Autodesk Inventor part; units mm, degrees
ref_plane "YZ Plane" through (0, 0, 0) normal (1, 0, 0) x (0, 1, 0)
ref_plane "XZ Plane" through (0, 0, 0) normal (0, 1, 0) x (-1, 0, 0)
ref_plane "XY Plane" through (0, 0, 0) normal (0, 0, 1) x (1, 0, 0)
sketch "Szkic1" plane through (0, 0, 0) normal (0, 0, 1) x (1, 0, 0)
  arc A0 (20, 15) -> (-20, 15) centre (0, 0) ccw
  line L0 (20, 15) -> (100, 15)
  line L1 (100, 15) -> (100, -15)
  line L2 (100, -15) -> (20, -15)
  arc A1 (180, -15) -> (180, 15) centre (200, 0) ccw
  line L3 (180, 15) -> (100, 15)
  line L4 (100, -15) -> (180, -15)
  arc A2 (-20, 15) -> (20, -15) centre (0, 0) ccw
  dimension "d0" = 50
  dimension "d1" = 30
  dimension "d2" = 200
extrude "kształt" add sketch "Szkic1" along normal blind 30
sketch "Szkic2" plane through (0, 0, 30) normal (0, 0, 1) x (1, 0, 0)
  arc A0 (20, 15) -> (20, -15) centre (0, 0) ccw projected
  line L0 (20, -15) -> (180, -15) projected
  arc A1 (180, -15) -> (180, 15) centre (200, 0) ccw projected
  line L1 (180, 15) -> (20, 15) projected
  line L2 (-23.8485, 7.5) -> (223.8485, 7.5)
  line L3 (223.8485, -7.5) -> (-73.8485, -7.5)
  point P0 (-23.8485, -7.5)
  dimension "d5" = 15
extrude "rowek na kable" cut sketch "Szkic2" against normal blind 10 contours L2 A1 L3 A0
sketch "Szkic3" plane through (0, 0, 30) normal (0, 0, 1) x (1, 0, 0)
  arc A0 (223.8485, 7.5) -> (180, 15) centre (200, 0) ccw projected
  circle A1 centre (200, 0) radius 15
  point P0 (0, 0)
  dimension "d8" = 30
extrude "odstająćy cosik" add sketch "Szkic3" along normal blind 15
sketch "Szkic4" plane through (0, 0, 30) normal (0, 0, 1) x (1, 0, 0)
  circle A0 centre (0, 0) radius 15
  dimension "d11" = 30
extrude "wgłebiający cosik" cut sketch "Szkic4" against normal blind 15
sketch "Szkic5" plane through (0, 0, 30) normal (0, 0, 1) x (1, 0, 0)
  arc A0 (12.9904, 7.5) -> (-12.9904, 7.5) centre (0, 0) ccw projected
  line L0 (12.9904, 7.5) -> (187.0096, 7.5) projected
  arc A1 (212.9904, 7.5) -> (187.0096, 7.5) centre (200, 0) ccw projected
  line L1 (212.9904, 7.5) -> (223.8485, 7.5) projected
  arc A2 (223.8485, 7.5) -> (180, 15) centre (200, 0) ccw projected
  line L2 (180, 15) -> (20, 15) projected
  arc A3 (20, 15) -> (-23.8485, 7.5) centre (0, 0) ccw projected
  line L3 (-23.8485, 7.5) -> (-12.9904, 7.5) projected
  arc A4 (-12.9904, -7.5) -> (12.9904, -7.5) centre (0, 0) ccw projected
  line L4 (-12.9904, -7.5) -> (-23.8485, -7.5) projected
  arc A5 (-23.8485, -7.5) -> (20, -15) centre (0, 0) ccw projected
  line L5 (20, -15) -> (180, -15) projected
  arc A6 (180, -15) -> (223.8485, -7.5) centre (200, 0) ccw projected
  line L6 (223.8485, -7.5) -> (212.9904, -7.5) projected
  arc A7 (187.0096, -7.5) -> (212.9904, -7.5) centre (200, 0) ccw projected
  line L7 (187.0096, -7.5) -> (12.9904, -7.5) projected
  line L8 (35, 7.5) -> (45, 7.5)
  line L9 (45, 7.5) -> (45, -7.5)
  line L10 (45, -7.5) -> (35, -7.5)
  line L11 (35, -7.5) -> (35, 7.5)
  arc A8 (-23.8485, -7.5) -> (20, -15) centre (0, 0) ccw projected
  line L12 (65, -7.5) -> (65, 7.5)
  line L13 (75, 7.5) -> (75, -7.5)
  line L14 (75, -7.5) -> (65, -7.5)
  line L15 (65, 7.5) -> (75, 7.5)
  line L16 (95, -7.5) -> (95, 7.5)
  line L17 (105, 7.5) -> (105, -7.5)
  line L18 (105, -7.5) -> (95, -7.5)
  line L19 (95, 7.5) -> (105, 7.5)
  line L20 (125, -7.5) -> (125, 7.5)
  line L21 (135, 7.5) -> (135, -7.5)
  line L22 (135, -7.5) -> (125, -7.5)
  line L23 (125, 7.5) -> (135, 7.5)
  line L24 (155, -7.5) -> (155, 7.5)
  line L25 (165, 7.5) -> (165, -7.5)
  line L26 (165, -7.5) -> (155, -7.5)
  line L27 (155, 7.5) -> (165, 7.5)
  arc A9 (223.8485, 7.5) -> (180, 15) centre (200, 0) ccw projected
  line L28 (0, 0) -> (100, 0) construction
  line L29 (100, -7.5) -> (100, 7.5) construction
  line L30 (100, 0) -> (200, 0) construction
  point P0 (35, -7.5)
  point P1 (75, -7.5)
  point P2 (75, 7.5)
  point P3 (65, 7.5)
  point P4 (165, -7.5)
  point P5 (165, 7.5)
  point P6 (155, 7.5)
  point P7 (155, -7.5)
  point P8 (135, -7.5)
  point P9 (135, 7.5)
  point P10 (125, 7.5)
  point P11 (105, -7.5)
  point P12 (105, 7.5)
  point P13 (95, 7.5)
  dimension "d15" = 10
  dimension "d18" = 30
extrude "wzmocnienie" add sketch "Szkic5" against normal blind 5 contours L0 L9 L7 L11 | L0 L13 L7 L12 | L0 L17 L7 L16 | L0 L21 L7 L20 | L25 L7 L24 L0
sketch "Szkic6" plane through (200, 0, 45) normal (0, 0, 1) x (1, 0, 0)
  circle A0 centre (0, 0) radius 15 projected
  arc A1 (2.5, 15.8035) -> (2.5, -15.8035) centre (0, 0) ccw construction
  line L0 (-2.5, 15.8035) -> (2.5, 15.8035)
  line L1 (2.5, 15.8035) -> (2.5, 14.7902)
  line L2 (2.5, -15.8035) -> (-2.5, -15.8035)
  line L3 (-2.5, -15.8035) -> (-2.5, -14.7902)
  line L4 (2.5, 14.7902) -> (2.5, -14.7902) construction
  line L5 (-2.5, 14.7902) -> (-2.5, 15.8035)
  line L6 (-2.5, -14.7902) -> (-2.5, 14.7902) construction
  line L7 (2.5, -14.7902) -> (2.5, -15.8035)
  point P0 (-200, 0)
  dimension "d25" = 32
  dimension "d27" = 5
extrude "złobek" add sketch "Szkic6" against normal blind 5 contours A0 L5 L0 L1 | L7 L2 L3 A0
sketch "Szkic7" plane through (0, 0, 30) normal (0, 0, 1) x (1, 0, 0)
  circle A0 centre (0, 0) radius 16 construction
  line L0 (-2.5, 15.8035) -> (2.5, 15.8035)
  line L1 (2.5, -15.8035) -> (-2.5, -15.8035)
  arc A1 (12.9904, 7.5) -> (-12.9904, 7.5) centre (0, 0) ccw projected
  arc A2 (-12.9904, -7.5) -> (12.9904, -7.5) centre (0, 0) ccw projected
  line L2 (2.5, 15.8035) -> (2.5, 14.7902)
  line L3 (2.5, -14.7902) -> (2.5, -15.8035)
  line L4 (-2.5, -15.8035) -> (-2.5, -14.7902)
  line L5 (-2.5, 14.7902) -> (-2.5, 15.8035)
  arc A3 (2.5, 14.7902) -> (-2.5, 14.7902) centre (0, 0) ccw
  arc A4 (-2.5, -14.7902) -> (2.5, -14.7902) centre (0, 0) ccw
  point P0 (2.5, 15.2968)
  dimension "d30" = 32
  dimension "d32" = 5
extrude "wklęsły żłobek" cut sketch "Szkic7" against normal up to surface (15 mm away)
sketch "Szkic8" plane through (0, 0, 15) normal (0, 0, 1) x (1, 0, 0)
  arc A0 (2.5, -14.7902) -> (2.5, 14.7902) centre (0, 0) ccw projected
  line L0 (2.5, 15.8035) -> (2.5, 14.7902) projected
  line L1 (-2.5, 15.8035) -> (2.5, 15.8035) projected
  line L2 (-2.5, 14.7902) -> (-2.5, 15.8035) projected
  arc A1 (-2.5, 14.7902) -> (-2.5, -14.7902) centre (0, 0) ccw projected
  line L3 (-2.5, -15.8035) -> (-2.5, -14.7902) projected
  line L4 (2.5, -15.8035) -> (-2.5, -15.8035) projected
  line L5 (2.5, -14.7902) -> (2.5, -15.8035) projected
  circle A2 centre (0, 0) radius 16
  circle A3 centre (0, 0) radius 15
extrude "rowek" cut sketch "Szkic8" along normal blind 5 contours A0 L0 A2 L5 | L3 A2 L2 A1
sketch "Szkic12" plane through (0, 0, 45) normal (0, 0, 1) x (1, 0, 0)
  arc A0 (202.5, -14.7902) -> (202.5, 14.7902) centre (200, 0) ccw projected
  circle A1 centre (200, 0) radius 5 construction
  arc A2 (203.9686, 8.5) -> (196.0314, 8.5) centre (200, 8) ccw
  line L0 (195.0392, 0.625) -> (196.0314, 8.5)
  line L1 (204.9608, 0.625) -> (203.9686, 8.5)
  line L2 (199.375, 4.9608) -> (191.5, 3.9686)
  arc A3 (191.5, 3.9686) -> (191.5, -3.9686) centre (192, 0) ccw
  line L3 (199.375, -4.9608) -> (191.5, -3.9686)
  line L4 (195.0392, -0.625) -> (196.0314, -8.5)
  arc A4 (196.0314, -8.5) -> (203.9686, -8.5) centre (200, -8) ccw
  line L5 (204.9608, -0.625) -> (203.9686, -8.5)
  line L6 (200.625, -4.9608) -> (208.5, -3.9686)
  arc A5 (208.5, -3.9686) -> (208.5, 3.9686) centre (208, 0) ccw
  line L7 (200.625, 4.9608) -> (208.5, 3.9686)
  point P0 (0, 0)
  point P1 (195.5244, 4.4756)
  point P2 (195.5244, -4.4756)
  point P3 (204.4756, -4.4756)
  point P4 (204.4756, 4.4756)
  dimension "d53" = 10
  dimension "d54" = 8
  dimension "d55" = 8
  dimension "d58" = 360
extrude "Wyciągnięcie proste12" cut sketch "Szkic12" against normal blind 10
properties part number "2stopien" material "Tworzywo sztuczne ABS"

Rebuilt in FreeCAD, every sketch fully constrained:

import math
import FreeCAD as App
import Part
import Sketcher
from FreeCAD import Vector
Q = App.Units.Quantity


def add_polygon(sketch, points):
    """Adds a closed chain of lines whose ends are joined by coincident constraints."""
    first, n = sketch.GeometryCount, len(points)
    for a, b in zip(points, points[1:] + points[:1]):
        sketch.addGeometry(Part.LineSegment(App.Vector(*a, 0), App.Vector(*b, 0)), False)
    for i in range(n):
        sketch.addConstraint(Sketcher.Constraint("Coincident", first + i, 2, first + (i + 1) % n, 1))

doc = App.newDocument("Part")
body = doc.addObject("PartDesign::Body", "Body")

# Sketch on XY plane
sketch1 = body.newObject("Sketcher::SketchObject", "Sketch")
sketch1.AttachmentSupport = (doc.getObject("XY_Plane"), [""])
sketch1.MapMode = "FlatFace"
sketch1.addGeometry([
    Part.ArcOfCircle(Part.Circle(Vector(0, 0, 0), Vector(0, 0, 1), 25), math.radians(37), math.radians(323)),
    Part.LineSegment(Vector(20, -15, 0), Vector(180, -15, 0)),
    Part.ArcOfCircle(Part.Circle(Vector(200, 0, 0), Vector(0, 0, 1), 25), math.radians(-143), math.radians(143)),
    Part.LineSegment(Vector(180, 15, 0), Vector(20, 15, 0)),
], False)
sketch1.addConstraint([
    Sketcher.Constraint("Coincident", 0, 2, 1, 1),
    Sketcher.Constraint("Coincident", 1, 2, 2, 1),
    Sketcher.Constraint("Coincident", 2, 2, 3, 1),
    Sketcher.Constraint("Coincident", 3, 2, 0, 1),
    Sketcher.Constraint("Horizontal", 1),
    Sketcher.Constraint("Horizontal", 3),
    Sketcher.Constraint("Coincident", 0, 3, -1, 1),
    Sketcher.Constraint("Equal", 0, 2),
    Sketcher.Constraint("Symmetric", 1, 2, 2, 2, -1),
    Sketcher.Constraint("Radius", 0, Q("25 mm")),
    Sketcher.Constraint("DistanceX", -1, 1, 2, 3, Q("200 mm")),
    Sketcher.Constraint("DistanceY", 1, 2, 2, 2, Q("30 mm")),
])
pad1 = body.newObject("PartDesign::Pad", "Pad")
pad1.Profile = sketch1
pad1.Length = 30

# Sketch on XY plane
sketch2 = body.newObject("Sketcher::SketchObject", "Sketch001")
sketch2.AttachmentSupport = (doc.getObject("XY_Plane"), [""])
sketch2.MapMode = "FlatFace"
sketch2.AttachmentOffset = App.Placement(Vector(0, 0, 30), App.Rotation())
sketch2.addGeometry([
    Part.LineSegment(Vector(224, 8, 0), Vector(-24, 8, 0)),
    Part.ArcOfCircle(Part.Circle(Vector(0, 0, 0), Vector(0, 0, 1), 25), math.radians(163), math.radians(197)),
    Part.LineSegment(Vector(-24, -8, 0), Vector(224, -8, 0)),
    Part.ArcOfCircle(Part.Circle(Vector(200, 0, 0), Vector(0, 0, 1), 25), math.radians(-17), math.radians(17)),
], False)
sketch2.addConstraint([
    Sketcher.Constraint("Coincident", 0, 2, 1, 1),
    Sketcher.Constraint("Coincident", 1, 2, 2, 1),
    Sketcher.Constraint("Coincident", 2, 2, 3, 1),
    Sketcher.Constraint("Coincident", 3, 2, 0, 1),
    Sketcher.Constraint("Horizontal", 0),
    Sketcher.Constraint("Horizontal", 2),
    Sketcher.Constraint("Coincident", 1, 3, -1, 1),
    Sketcher.Constraint("Equal", 1, 3),
    Sketcher.Constraint("Symmetric", 2, 2, 3, 2, -1),
    Sketcher.Constraint("Radius", 1, Q("25 mm")),
    Sketcher.Constraint("DistanceY", 1, 2, 0, 2, Q("15 mm")),
    Sketcher.Constraint("DistanceX", -1, 1, 3, 3, Q("200 mm")),
])
pocket1 = body.newObject("PartDesign::Pocket", "Pocket")
pocket1.Profile = sketch2
pocket1.Length = 10

# Sketch on XY plane
sketch3 = body.newObject("Sketcher::SketchObject", "Sketch002")
sketch3.AttachmentSupport = (doc.getObject("XY_Plane"), [""])
sketch3.MapMode = "FlatFace"
sketch3.AttachmentOffset = App.Placement(Vector(0, 0, 30), App.Rotation())
sketch3.addGeometry(Part.Circle(Vector(200, 0, 0), Vector(0, 0, 1), 15), False)
sketch3.addConstraint([
    Sketcher.Constraint("PointOnObject", 0, 3, -1),
    Sketcher.Constraint("Diameter", 0, Q("30 mm")),
    Sketcher.Constraint("DistanceX", -1, 1, 0, 3, Q("200 mm")),
])
pad2 = body.newObject("PartDesign::Pad", "Pad001")
pad2.Profile = sketch3
pad2.Length = 15

# Sketch on XY plane
sketch4 = body.newObject("Sketcher::SketchObject", "Sketch003")
sketch4.AttachmentSupport = (doc.getObject("XY_Plane"), [""])
sketch4.MapMode = "FlatFace"
sketch4.AttachmentOffset = App.Placement(Vector(0, 0, 30), App.Rotation())
sketch4.addGeometry(Part.Circle(Vector(0, 0, 0), Vector(0, 0, 1), 15), False)
sketch4.addConstraint([
    Sketcher.Constraint("Coincident", 0, 3, -1, 1),
    Sketcher.Constraint("Diameter", 0, Q("30 mm")),
])
pocket2 = body.newObject("PartDesign::Pocket", "Pocket001")
pocket2.Profile = sketch4
pocket2.Length = 15

# Sketch on XY plane
sketch5 = body.newObject("Sketcher::SketchObject", "Sketch004")
sketch5.AttachmentSupport = (doc.getObject("XY_Plane"), [""])
sketch5.MapMode = "FlatFace"
sketch5.AttachmentOffset = App.Placement(Vector(0, 0, 30), App.Rotation())
add_polygon(sketch5, [(45, 8), (35, 8), (35, -8), (45, -8)])  # lines 0-3
add_polygon(sketch5, [(75, 8), (65, 8), (65, -8), (75, -8)])  # lines 4-7
add_polygon(sketch5, [(105, 8), (95, 8), (95, -8), (105, -8)])  # lines 8-11
add_polygon(sketch5, [(135, 8), (125, 8), (125, -8), (135, -8)])  # lines 12-15
add_polygon(sketch5, [(165, -8), (165, 8), (155, 8), (155, -8)])  # lines 16-19
sketch5.addConstraint([
    Sketcher.Constraint("Horizontal", 0),
    Sketcher.Constraint("Vertical", 1),
    Sketcher.Constraint("Horizontal", 2),
    Sketcher.Constraint("Vertical", 3),
    Sketcher.Constraint("Horizontal", 4),
    Sketcher.Constraint("Vertical", 5),
    Sketcher.Constraint("Horizontal", 6),
    Sketcher.Constraint("Vertical", 7),
    Sketcher.Constraint("Horizontal", 8),
    Sketcher.Constraint("Vertical", 9),
    Sketcher.Constraint("Horizontal", 10),
    Sketcher.Constraint("Vertical", 11),
    Sketcher.Constraint("Horizontal", 12),
    Sketcher.Constraint("Vertical", 13),
    Sketcher.Constraint("Horizontal", 14),
    Sketcher.Constraint("Vertical", 15),
    Sketcher.Constraint("Vertical", 16),
    Sketcher.Constraint("Horizontal", 17),
    Sketcher.Constraint("Vertical", 18),
    Sketcher.Constraint("Horizontal", 19),
    Sketcher.Constraint("Horizontal", 3, 2, 4, 2),
    Sketcher.Constraint("Horizontal", 2, 2, 5, 2),
    Sketcher.Constraint("Horizontal", 7, 2, 8, 2),
    Sketcher.Constraint("Horizontal", 6, 2, 9, 2),
    Sketcher.Constraint("Horizontal", 11, 2, 12, 2),
    Sketcher.Constraint("Horizontal", 10, 2, 13, 2),
    Sketcher.Constraint("Horizontal", 15, 2, 16, 2),
    Sketcher.Constraint("Horizontal", 14, 2, 18, 2),
    Sketcher.Constraint("Equal", 2, 4),
    Sketcher.Constraint("Equal", 6, 8),
    Sketcher.Constraint("Equal", 10, 12),
    Sketcher.Constraint("Equal", 14, 17),
    Sketcher.Constraint("DistanceX", 0, 2, 0, 1, Q("10 mm")),
    Sketcher.Constraint("DistanceX", 0, 2, 4, 2, Q("30 mm")),
    Sketcher.Constraint("DistanceX", 4, 2, 8, 2, Q("30 mm")),
    Sketcher.Constraint("DistanceX", 8, 2, 12, 2, Q("30 mm")),
    Sketcher.Constraint("DistanceX", 15, 2, 16, 2, Q("30 mm")),
    Sketcher.Constraint("DistanceY", 1, 2, 1, 1, Q("15 mm")),
    Sketcher.Constraint("DistanceX", -1, 1, 0, 2, Q("35 mm")),
    Sketcher.Constraint("DistanceY", -1, 1, 0, 2, Q("7.5 mm")),
])
pad3 = body.newObject("PartDesign::Pad", "Pad002")
pad3.Profile = sketch5
pad3.Length = 5
pad3.Reversed = True

# Sketch on XY plane
sketch6 = body.newObject("Sketcher::SketchObject", "Sketch005")
sketch6.AttachmentSupport = (doc.getObject("XY_Plane"), [""])
sketch6.MapMode = "FlatFace"
sketch6.AttachmentOffset = App.Placement(Vector(0, 0, 45), App.Rotation())
sketch6.addGeometry([
    Part.ArcOfCircle(Part.Circle(Vector(200, 0, 0), Vector(0, 0, 1), 15), math.radians(80.41), math.radians(99.59)),  # 0
    Part.LineSegment(Vector(202.5, 14.8, 0), Vector(202.5, 15.8, 0)),  # 1
    Part.LineSegment(Vector(202.5, 15.8, 0), Vector(197.5, 15.8, 0)),  # 2
    Part.LineSegment(Vector(197.5, 15.8, 0), Vector(197.5, 14.8, 0)),  # 3
    Part.LineSegment(Vector(202.5, -15.8, 0), Vector(202.5, -14.8, 0)),  # 4
    Part.ArcOfCircle(Part.Circle(Vector(200, 0, 0), Vector(0, 0, 1), 15), math.radians(-99.59), math.radians(-80.41)),  # 5
    Part.LineSegment(Vector(197.5, -14.8, 0), Vector(197.5, -15.8, 0)),  # 6
    Part.LineSegment(Vector(197.5, -15.8, 0), Vector(202.5, -15.8, 0)),  # 7
], False)
sketch6.addConstraint([
    Sketcher.Constraint("Coincident", 0, 1, 1, 1),
    Sketcher.Constraint("Coincident", 1, 2, 2, 1),
    Sketcher.Constraint("Coincident", 2, 2, 3, 1),
    Sketcher.Constraint("Coincident", 3, 2, 0, 2),
    Sketcher.Constraint("Coincident", 4, 2, 5, 2),
    Sketcher.Constraint("Coincident", 5, 1, 6, 1),
    Sketcher.Constraint("Coincident", 6, 2, 7, 1),
    Sketcher.Constraint("Coincident", 7, 2, 4, 1),
    Sketcher.Constraint("Vertical", 1),
    Sketcher.Constraint("Horizontal", 2),
    Sketcher.Constraint("Vertical", 3),
    Sketcher.Constraint("Vertical", 4),
    Sketcher.Constraint("Vertical", 6),
    Sketcher.Constraint("Horizontal", 7),
    Sketcher.Constraint("Coincident", 5, 3, 0, 3),
    Sketcher.Constraint("Equal", 0, 5),
    Sketcher.Constraint("Symmetric", 0, 1, 4, 2, -1),
    Sketcher.Constraint("Symmetric", 2, 2, 6, 2, -1),
    Sketcher.Constraint("Horizontal", 0, 1, 3, 2),
    Sketcher.Constraint("DistanceX", 2, 2, 2, 1, Q("5 mm")),
    Sketcher.Constraint("Radius", 0, Q("15 mm")),
    Sketcher.Constraint("DistanceX", -1, 1, 0, 3, Q("200 mm")),
    Sketcher.Constraint("DistanceY", 1, 1, 1, 2, Q("1.0133 mm")),
])
pad4 = body.newObject("PartDesign::Pad", "Pad003")
pad4.Profile = sketch6
pad4.Length = 5
pad4.Reversed = True

# Sketch on XY plane
sketch7 = body.newObject("Sketcher::SketchObject", "Sketch006")
sketch7.AttachmentSupport = (doc.getObject("XY_Plane"), [""])
sketch7.MapMode = "FlatFace"
sketch7.AttachmentOffset = App.Placement(Vector(0, 0, 30), App.Rotation())
sketch7.addGeometry([
    Part.LineSegment(Vector(2.5, 15.8, 0), Vector(-2.5, 15.8, 0)),  # 0
    Part.LineSegment(Vector(-2.5, 15.8, 0), Vector(-2.5, 14.8, 0)),  # 1
    Part.ArcOfCircle(Part.Circle(Vector(0, 0, 0), Vector(0, 0, 1), 15), math.radians(80.41), math.radians(99.59)),  # 2
    Part.LineSegment(Vector(2.5, 14.8, 0), Vector(2.5, 15.8, 0)),  # 3
    Part.LineSegment(Vector(-2.5, -15.8, 0), Vector(2.5, -15.8, 0)),  # 4
    Part.LineSegment(Vector(2.5, -15.8, 0), Vector(2.5, -14.8, 0)),  # 5
    Part.ArcOfCircle(Part.Circle(Vector(0, 0, 0), Vector(0, 0, 1), 15), math.radians(-99.59), math.radians(-80.41)),  # 6
    Part.LineSegment(Vector(-2.5, -14.8, 0), Vector(-2.5, -15.8, 0)),  # 7
], False)
sketch7.addConstraint([
    Sketcher.Constraint("Coincident", 0, 2, 1, 1),
    Sketcher.Constraint("Coincident", 1, 2, 2, 2),
    Sketcher.Constraint("Coincident", 2, 1, 3, 1),
    Sketcher.Constraint("Coincident", 3, 2, 0, 1),
    Sketcher.Constraint("Coincident", 4, 2, 5, 1),
    Sketcher.Constraint("Coincident", 5, 2, 6, 2),
    Sketcher.Constraint("Coincident", 6, 1, 7, 1),
    Sketcher.Constraint("Coincident", 7, 2, 4, 1),
    Sketcher.Constraint("Horizontal", 0),
    Sketcher.Constraint("Vertical", 1),
    Sketcher.Constraint("Vertical", 3),
    Sketcher.Constraint("Horizontal", 4),
    Sketcher.Constraint("Vertical", 5),
    Sketcher.Constraint("Vertical", 7),
    Sketcher.Constraint("Coincident", 2, 3, -1, 1),
    Sketcher.Constraint("Coincident", 6, 3, -1, 1),
    Sketcher.Constraint("Equal", 2, 6),
    Sketcher.Constraint("Symmetric", 0, 2, 4, 2, -1, 1),
    Sketcher.Constraint("Horizontal", 1, 2, 2, 1),
    Sketcher.Constraint("Horizontal", 5, 2, 6, 1),
    Sketcher.Constraint("DistanceX", 0, 2, 0, 1, Q("5 mm")),
    Sketcher.Constraint("Radius", 2, Q("15 mm")),
    Sketcher.Constraint("DistanceY", 1, 2, 1, 1, Q("1.0133 mm")),
])
pocket3 = body.newObject("PartDesign::Pocket", "Pocket002")
pocket3.Profile = sketch7
pocket3.Length = 15

# Sketch on XY plane
sketch8 = body.newObject("Sketcher::SketchObject", "Sketch007")
sketch8.AttachmentSupport = (doc.getObject("XY_Plane"), [""])
sketch8.MapMode = "FlatFace"
sketch8.AttachmentOffset = App.Placement(Vector(0, 0, 15), App.Rotation())
sketch8.addGeometry([
    Part.ArcOfCircle(Part.Circle(Vector(0, 0, 0), Vector(0, 0, 1), 15), math.radians(-80), math.radians(80)),  # 0
    Part.LineSegment(Vector(2.5, -14.8, 0), Vector(2.5, -15.8, 0)),  # 1
    Part.ArcOfCircle(Part.Circle(Vector(0, 0, 0), Vector(0, 0, 1), 16), math.radians(-81), math.radians(81)),  # 2
    Part.LineSegment(Vector(2.5, 15.8, 0), Vector(2.5, 14.8, 0)),  # 3
    Part.LineSegment(Vector(-2.5, -15.8, 0), Vector(-2.5, -14.8, 0)),  # 4
    Part.ArcOfCircle(Part.Circle(Vector(0, 0, 0), Vector(0, 0, 1), 15), math.radians(100), math.radians(260)),  # 5
    Part.LineSegment(Vector(-2.5, 14.8, 0), Vector(-2.5, 15.8, 0)),  # 6
    Part.ArcOfCircle(Part.Circle(Vector(0, 0, 0), Vector(0, 0, 1), 16), math.radians(99), math.radians(261)),  # 7
], False)
sketch8.addConstraint([
    Sketcher.Constraint("Coincident", 0, 1, 1, 1),
    Sketcher.Constraint("Coincident", 1, 2, 2, 1),
    Sketcher.Constraint("Coincident", 2, 2, 3, 1),
    Sketcher.Constraint("Coincident", 3, 2, 0, 2),
    Sketcher.Constraint("Coincident", 4, 2, 5, 2),
    Sketcher.Constraint("Coincident", 5, 1, 6, 1),
    Sketcher.Constraint("Coincident", 6, 2, 7, 1),
    Sketcher.Constraint("Coincident", 7, 2, 4, 1),
    Sketcher.Constraint("Vertical", 1),
    Sketcher.Constraint("Vertical", 3),
    Sketcher.Constraint("Vertical", 4),
    Sketcher.Constraint("Vertical", 6),
    Sketcher.Constraint("Coincident", 0, 3, -1, 1),
    Sketcher.Constraint("Coincident", 2, 3, -1, 1),
    Sketcher.Constraint("Coincident", 5, 3, -1, 1),
    Sketcher.Constraint("Coincident", 7, 3, -1, 1),
    Sketcher.Constraint("Equal", 0, 5),
    Sketcher.Constraint("Equal", 2, 7),
    Sketcher.Constraint("Horizontal", 0, 1, 4, 2),
    Sketcher.Constraint("Horizontal", 3, 2, 5, 1),
    Sketcher.Constraint("Vertical", 1, 2, 2, 2),
    Sketcher.Constraint("Radius", 0, Q("15 mm")),
    Sketcher.Constraint("Radius", 2, Q("16 mm")),
    Sketcher.Constraint("DistanceX", 4, 2, 0, 1, Q("5 mm")),
])
pocket4 = body.newObject("PartDesign::Pocket", "Pocket003")
pocket4.Profile = sketch8
pocket4.Length = 5
pocket4.Reversed = True

# Sketch on XY plane
sketch9 = body.newObject("Sketcher::SketchObject", "Sketch008")
sketch9.AttachmentSupport = (doc.getObject("XY_Plane"), [""])
sketch9.MapMode = "FlatFace"
sketch9.AttachmentOffset = App.Placement(Vector(0, 0, 45), App.Rotation())
sketch9.addGeometry([
    Part.LineSegment(Vector(204.5, 4.5, 0), Vector(204, 8.5, 0)),  # 0
    Part.ArcOfCircle(Part.Circle(Vector(200, 8, 0), Vector(0, 0, 1), 4), math.radians(7), math.radians(173)),  # 1
    Part.LineSegment(Vector(196, 8.5, 0), Vector(195.5, 4.5, 0)),  # 2
    Part.LineSegment(Vector(195.5, 4.5, 0), Vector(191.5, 4, 0)),  # 3
    Part.ArcOfCircle(Part.Circle(Vector(192, 0, 0), Vector(0, 0, 1), 4), math.radians(97), math.radians(263)),  # 4
    Part.LineSegment(Vector(191.5, -4, 0), Vector(195.5, -4.5, 0)),  # 5
    Part.LineSegment(Vector(195.5, -4.5, 0), Vector(196, -8.5, 0)),  # 6
    Part.ArcOfCircle(Part.Circle(Vector(200, -8, 0), Vector(0, 0, 1), 4), math.radians(-173), math.radians(-7)),  # 7
    Part.LineSegment(Vector(204, -8.5, 0), Vector(204.5, -4.5, 0)),  # 8
    Part.LineSegment(Vector(204.5, -4.5, 0), Vector(208.5, -4, 0)),  # 9
    Part.ArcOfCircle(Part.Circle(Vector(208, 0, 0), Vector(0, 0, 1), 4), math.radians(-83), math.radians(83)),  # 10
    Part.LineSegment(Vector(208.5, 4, 0), Vector(204.5, 4.5, 0)),  # 11
], False)
sketch9.addConstraint([
    Sketcher.Constraint("Tangent", 0, 2, 1, 1),
    Sketcher.Constraint("Tangent", 1, 2, 2, 1),
    Sketcher.Constraint("Coincident", 2, 2, 3, 1),
    Sketcher.Constraint("Tangent", 3, 2, 4, 1),
    Sketcher.Constraint("Tangent", 4, 2, 5, 1),
    Sketcher.Constraint("Coincident", 5, 2, 6, 1),
    Sketcher.Constraint("Tangent", 6, 2, 7, 1),
    Sketcher.Constraint("Tangent", 7, 2, 8, 1),
    Sketcher.Constraint("Coincident", 8, 2, 9, 1),
    Sketcher.Constraint("Tangent", 9, 2, 10, 1),
    Sketcher.Constraint("Tangent", 10, 2, 11, 1),
    Sketcher.Constraint("Coincident", 11, 2, 0, 1),
    Sketcher.Constraint("Equal", 1, 4),
    Sketcher.Constraint("Equal", 4, 7),
    Sketcher.Constraint("Equal", 7, 10),
    Sketcher.Constraint("Symmetric", 1, 3, 7, 3, -1),
    Sketcher.Constraint("Symmetric", 3, 2, 4, 2, -1),
    Sketcher.Constraint("Symmetric", 9, 2, 10, 2, -1),
    Sketcher.Constraint("Perpendicular", 0, 3),
    Sketcher.Constraint("Perpendicular", 2, 5),
    Sketcher.Constraint("Perpendicular", 3, 6),
    Sketcher.Constraint("Perpendicular", 5, 8),
    Sketcher.Constraint("Perpendicular", 6, 9),
    Sketcher.Constraint("Horizontal", 5, 2, 8, 2),
    Sketcher.Constraint("Equal", 2, 3),
    Sketcher.Constraint("Radius", 1, Q("4 mm")),
    Sketcher.Constraint("DistanceY", -1, 1, 1, 3, Q("8 mm")),
    Sketcher.Constraint("DistanceX", -1, 1, 1, 3, Q("200 mm")),
    Sketcher.Constraint("DistanceY", -1, 1, 0, 2, Q("8.5 mm")),
])
pocket5 = body.newObject("PartDesign::Pocket", "Pocket004")
pocket5.Profile = sketch9
pocket5.Length = 10

doc.recompute()
